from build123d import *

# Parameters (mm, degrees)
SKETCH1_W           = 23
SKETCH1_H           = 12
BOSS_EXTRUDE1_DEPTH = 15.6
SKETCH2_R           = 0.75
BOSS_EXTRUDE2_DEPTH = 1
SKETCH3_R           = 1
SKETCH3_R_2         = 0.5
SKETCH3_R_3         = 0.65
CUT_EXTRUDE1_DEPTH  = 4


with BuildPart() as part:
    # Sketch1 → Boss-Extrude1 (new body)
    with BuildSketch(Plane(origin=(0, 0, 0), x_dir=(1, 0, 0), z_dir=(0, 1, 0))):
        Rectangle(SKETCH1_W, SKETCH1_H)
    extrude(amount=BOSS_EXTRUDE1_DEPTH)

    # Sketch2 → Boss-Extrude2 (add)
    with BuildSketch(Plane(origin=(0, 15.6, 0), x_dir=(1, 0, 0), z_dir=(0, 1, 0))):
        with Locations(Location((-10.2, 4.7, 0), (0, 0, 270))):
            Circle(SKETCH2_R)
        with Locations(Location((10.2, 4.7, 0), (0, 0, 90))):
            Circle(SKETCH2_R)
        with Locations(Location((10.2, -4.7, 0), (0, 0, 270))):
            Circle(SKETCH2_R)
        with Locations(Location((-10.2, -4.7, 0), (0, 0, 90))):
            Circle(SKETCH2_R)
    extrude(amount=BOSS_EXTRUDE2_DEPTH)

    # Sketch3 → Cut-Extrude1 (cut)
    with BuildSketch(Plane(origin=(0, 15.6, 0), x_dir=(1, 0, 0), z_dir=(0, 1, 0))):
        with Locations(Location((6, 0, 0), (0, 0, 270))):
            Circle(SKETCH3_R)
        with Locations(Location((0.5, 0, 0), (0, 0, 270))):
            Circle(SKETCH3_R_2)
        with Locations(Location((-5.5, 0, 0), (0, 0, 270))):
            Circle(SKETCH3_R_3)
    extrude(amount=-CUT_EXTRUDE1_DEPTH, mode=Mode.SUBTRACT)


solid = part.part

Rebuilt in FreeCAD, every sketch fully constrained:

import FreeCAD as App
import Part
import Sketcher

V = App.Vector
Q = App.Units.Quantity

doc = App.newDocument("Part")
body = doc.addObject("PartDesign::Body", "Body")

sketch1 = doc.addObject("Sketcher::SketchObject", "Sketch")
body.addObject(sketch1)
sketch1.AttachmentSupport = (doc.XZ_Plane, [""])
sketch1.MapMode = "FlatFace"
sketch1.addGeometry([
    Part.LineSegment(V(-11.5, -6, 0), V(-11.5, 6, 0)),
    Part.LineSegment(V(-11.5, 6, 0), V(11.5, 6, 0)),
    Part.LineSegment(V(11.5, 6, 0), V(11.5, -6, 0)),
    Part.LineSegment(V(11.5, -6, 0), V(-11.5, -6, 0)),
], False)
sketch1.addConstraint([
    Sketcher.Constraint("Coincident", 0, 2, 1, 1),
    Sketcher.Constraint("Coincident", 1, 2, 2, 1),
    Sketcher.Constraint("Coincident", 2, 2, 3, 1),
    Sketcher.Constraint("Coincident", 3, 2, 0, 1),
    Sketcher.Constraint("Vertical", 0),
    Sketcher.Constraint("Horizontal", 1),
    Sketcher.Constraint("Vertical", 2),
    Sketcher.Constraint("Horizontal", 3),
    Sketcher.Constraint("Symmetric", 0, 2, 2, 2, -1, 1),
    Sketcher.Constraint("DistanceX", 1, 1, 1, 2, Q("23 mm")),
    Sketcher.Constraint("DistanceY", 0, 1, 0, 2, Q("12 mm")),
])
pad1 = doc.addObject("PartDesign::Pad", "Pad")
body.addObject(pad1)
pad1.Profile = sketch1
pad1.Length = 15.6
pad1.Reversed = True

sketch2 = doc.addObject("Sketcher::SketchObject", "Sketch001")
body.addObject(sketch2)
sketch2.AttachmentSupport = (doc.XZ_Plane, [""])
sketch2.MapMode = "FlatFace"
sketch2.AttachmentOffset = App.Placement(V(0, 0, -15.6), App.Rotation())
sketch2.addGeometry([
    Part.Circle(V(-10.2, -4.7, 0), V(0, 0, 1), 0.75),
    Part.Circle(V(10.2, -4.7, 0), V(0, 0, 1), 0.75),
    Part.Circle(V(10.2, 4.7, 0), V(0, 0, 1), 0.75),
    Part.Circle(V(-10.2, 4.7, 0), V(0, 0, 1), 0.75),
], False)
sketch2.addConstraint([
    Sketcher.Constraint("Equal", 0, 1),
    Sketcher.Constraint("Equal", 1, 2),
    Sketcher.Constraint("Equal", 2, 3),
    Sketcher.Constraint("Symmetric", 0, 3, 2, 3, -1, 1),
    Sketcher.Constraint("Symmetric", 1, 3, 3, 3, -1, 1),
    Sketcher.Constraint("Symmetric", 0, 3, 1, 3, -2),
    Sketcher.Constraint("Diameter", 0, Q("1.5 mm")),
    Sketcher.Constraint("DistanceX", 0, 3, -1, 1, Q("10.2 mm")),
    Sketcher.Constraint("DistanceY", 0, 3, -1, 1, Q("4.7 mm")),
])
pad2 = doc.addObject("PartDesign::Pad", "Pad001")
body.addObject(pad2)
pad2.Profile = sketch2
pad2.Length = 1
pad2.Reversed = True

sketch3 = doc.addObject("Sketcher::SketchObject", "Sketch002")
body.addObject(sketch3)
sketch3.AttachmentSupport = (doc.XZ_Plane, [""])
sketch3.MapMode = "FlatFace"
sketch3.AttachmentOffset = App.Placement(V(0, 0, -15.6), App.Rotation())
sketch3.addGeometry([
    Part.Circle(V(6, 0, 0), V(0, 0, 1), 1),
    Part.Circle(V(0.5, 0, 0), V(0, 0, 1), 0.5),
    Part.Circle(V(-5.5, 0, 0), V(0, 0, 1), 0.65),
], False)
sketch3.addConstraint([
    Sketcher.Constraint("PointOnObject", 0, 3, -1),
    Sketcher.Constraint("PointOnObject", 1, 3, -1),
    Sketcher.Constraint("PointOnObject", 2, 3, -1),
    Sketcher.Constraint("Diameter", 0, Q("2 mm")),
    Sketcher.Constraint("Diameter", 1, Q("1 mm")),
    Sketcher.Constraint("Diameter", 2, Q("1.3 mm")),
    Sketcher.Constraint("DistanceX", -1, 1, 0, 3, Q("6 mm")),
    Sketcher.Constraint("DistanceX", 2, 3, 1, 3, Q("6 mm")),
    Sketcher.Constraint("DistanceX", -1, 1, 1, 3, Q("0.5 mm")),
])
pocket1 = doc.addObject("PartDesign::Pocket", "Pocket")
body.addObject(pocket1)
pocket1.Profile = sketch3
pocket1.Length = 4
pocket1.Reversed = True

doc.recompute()
